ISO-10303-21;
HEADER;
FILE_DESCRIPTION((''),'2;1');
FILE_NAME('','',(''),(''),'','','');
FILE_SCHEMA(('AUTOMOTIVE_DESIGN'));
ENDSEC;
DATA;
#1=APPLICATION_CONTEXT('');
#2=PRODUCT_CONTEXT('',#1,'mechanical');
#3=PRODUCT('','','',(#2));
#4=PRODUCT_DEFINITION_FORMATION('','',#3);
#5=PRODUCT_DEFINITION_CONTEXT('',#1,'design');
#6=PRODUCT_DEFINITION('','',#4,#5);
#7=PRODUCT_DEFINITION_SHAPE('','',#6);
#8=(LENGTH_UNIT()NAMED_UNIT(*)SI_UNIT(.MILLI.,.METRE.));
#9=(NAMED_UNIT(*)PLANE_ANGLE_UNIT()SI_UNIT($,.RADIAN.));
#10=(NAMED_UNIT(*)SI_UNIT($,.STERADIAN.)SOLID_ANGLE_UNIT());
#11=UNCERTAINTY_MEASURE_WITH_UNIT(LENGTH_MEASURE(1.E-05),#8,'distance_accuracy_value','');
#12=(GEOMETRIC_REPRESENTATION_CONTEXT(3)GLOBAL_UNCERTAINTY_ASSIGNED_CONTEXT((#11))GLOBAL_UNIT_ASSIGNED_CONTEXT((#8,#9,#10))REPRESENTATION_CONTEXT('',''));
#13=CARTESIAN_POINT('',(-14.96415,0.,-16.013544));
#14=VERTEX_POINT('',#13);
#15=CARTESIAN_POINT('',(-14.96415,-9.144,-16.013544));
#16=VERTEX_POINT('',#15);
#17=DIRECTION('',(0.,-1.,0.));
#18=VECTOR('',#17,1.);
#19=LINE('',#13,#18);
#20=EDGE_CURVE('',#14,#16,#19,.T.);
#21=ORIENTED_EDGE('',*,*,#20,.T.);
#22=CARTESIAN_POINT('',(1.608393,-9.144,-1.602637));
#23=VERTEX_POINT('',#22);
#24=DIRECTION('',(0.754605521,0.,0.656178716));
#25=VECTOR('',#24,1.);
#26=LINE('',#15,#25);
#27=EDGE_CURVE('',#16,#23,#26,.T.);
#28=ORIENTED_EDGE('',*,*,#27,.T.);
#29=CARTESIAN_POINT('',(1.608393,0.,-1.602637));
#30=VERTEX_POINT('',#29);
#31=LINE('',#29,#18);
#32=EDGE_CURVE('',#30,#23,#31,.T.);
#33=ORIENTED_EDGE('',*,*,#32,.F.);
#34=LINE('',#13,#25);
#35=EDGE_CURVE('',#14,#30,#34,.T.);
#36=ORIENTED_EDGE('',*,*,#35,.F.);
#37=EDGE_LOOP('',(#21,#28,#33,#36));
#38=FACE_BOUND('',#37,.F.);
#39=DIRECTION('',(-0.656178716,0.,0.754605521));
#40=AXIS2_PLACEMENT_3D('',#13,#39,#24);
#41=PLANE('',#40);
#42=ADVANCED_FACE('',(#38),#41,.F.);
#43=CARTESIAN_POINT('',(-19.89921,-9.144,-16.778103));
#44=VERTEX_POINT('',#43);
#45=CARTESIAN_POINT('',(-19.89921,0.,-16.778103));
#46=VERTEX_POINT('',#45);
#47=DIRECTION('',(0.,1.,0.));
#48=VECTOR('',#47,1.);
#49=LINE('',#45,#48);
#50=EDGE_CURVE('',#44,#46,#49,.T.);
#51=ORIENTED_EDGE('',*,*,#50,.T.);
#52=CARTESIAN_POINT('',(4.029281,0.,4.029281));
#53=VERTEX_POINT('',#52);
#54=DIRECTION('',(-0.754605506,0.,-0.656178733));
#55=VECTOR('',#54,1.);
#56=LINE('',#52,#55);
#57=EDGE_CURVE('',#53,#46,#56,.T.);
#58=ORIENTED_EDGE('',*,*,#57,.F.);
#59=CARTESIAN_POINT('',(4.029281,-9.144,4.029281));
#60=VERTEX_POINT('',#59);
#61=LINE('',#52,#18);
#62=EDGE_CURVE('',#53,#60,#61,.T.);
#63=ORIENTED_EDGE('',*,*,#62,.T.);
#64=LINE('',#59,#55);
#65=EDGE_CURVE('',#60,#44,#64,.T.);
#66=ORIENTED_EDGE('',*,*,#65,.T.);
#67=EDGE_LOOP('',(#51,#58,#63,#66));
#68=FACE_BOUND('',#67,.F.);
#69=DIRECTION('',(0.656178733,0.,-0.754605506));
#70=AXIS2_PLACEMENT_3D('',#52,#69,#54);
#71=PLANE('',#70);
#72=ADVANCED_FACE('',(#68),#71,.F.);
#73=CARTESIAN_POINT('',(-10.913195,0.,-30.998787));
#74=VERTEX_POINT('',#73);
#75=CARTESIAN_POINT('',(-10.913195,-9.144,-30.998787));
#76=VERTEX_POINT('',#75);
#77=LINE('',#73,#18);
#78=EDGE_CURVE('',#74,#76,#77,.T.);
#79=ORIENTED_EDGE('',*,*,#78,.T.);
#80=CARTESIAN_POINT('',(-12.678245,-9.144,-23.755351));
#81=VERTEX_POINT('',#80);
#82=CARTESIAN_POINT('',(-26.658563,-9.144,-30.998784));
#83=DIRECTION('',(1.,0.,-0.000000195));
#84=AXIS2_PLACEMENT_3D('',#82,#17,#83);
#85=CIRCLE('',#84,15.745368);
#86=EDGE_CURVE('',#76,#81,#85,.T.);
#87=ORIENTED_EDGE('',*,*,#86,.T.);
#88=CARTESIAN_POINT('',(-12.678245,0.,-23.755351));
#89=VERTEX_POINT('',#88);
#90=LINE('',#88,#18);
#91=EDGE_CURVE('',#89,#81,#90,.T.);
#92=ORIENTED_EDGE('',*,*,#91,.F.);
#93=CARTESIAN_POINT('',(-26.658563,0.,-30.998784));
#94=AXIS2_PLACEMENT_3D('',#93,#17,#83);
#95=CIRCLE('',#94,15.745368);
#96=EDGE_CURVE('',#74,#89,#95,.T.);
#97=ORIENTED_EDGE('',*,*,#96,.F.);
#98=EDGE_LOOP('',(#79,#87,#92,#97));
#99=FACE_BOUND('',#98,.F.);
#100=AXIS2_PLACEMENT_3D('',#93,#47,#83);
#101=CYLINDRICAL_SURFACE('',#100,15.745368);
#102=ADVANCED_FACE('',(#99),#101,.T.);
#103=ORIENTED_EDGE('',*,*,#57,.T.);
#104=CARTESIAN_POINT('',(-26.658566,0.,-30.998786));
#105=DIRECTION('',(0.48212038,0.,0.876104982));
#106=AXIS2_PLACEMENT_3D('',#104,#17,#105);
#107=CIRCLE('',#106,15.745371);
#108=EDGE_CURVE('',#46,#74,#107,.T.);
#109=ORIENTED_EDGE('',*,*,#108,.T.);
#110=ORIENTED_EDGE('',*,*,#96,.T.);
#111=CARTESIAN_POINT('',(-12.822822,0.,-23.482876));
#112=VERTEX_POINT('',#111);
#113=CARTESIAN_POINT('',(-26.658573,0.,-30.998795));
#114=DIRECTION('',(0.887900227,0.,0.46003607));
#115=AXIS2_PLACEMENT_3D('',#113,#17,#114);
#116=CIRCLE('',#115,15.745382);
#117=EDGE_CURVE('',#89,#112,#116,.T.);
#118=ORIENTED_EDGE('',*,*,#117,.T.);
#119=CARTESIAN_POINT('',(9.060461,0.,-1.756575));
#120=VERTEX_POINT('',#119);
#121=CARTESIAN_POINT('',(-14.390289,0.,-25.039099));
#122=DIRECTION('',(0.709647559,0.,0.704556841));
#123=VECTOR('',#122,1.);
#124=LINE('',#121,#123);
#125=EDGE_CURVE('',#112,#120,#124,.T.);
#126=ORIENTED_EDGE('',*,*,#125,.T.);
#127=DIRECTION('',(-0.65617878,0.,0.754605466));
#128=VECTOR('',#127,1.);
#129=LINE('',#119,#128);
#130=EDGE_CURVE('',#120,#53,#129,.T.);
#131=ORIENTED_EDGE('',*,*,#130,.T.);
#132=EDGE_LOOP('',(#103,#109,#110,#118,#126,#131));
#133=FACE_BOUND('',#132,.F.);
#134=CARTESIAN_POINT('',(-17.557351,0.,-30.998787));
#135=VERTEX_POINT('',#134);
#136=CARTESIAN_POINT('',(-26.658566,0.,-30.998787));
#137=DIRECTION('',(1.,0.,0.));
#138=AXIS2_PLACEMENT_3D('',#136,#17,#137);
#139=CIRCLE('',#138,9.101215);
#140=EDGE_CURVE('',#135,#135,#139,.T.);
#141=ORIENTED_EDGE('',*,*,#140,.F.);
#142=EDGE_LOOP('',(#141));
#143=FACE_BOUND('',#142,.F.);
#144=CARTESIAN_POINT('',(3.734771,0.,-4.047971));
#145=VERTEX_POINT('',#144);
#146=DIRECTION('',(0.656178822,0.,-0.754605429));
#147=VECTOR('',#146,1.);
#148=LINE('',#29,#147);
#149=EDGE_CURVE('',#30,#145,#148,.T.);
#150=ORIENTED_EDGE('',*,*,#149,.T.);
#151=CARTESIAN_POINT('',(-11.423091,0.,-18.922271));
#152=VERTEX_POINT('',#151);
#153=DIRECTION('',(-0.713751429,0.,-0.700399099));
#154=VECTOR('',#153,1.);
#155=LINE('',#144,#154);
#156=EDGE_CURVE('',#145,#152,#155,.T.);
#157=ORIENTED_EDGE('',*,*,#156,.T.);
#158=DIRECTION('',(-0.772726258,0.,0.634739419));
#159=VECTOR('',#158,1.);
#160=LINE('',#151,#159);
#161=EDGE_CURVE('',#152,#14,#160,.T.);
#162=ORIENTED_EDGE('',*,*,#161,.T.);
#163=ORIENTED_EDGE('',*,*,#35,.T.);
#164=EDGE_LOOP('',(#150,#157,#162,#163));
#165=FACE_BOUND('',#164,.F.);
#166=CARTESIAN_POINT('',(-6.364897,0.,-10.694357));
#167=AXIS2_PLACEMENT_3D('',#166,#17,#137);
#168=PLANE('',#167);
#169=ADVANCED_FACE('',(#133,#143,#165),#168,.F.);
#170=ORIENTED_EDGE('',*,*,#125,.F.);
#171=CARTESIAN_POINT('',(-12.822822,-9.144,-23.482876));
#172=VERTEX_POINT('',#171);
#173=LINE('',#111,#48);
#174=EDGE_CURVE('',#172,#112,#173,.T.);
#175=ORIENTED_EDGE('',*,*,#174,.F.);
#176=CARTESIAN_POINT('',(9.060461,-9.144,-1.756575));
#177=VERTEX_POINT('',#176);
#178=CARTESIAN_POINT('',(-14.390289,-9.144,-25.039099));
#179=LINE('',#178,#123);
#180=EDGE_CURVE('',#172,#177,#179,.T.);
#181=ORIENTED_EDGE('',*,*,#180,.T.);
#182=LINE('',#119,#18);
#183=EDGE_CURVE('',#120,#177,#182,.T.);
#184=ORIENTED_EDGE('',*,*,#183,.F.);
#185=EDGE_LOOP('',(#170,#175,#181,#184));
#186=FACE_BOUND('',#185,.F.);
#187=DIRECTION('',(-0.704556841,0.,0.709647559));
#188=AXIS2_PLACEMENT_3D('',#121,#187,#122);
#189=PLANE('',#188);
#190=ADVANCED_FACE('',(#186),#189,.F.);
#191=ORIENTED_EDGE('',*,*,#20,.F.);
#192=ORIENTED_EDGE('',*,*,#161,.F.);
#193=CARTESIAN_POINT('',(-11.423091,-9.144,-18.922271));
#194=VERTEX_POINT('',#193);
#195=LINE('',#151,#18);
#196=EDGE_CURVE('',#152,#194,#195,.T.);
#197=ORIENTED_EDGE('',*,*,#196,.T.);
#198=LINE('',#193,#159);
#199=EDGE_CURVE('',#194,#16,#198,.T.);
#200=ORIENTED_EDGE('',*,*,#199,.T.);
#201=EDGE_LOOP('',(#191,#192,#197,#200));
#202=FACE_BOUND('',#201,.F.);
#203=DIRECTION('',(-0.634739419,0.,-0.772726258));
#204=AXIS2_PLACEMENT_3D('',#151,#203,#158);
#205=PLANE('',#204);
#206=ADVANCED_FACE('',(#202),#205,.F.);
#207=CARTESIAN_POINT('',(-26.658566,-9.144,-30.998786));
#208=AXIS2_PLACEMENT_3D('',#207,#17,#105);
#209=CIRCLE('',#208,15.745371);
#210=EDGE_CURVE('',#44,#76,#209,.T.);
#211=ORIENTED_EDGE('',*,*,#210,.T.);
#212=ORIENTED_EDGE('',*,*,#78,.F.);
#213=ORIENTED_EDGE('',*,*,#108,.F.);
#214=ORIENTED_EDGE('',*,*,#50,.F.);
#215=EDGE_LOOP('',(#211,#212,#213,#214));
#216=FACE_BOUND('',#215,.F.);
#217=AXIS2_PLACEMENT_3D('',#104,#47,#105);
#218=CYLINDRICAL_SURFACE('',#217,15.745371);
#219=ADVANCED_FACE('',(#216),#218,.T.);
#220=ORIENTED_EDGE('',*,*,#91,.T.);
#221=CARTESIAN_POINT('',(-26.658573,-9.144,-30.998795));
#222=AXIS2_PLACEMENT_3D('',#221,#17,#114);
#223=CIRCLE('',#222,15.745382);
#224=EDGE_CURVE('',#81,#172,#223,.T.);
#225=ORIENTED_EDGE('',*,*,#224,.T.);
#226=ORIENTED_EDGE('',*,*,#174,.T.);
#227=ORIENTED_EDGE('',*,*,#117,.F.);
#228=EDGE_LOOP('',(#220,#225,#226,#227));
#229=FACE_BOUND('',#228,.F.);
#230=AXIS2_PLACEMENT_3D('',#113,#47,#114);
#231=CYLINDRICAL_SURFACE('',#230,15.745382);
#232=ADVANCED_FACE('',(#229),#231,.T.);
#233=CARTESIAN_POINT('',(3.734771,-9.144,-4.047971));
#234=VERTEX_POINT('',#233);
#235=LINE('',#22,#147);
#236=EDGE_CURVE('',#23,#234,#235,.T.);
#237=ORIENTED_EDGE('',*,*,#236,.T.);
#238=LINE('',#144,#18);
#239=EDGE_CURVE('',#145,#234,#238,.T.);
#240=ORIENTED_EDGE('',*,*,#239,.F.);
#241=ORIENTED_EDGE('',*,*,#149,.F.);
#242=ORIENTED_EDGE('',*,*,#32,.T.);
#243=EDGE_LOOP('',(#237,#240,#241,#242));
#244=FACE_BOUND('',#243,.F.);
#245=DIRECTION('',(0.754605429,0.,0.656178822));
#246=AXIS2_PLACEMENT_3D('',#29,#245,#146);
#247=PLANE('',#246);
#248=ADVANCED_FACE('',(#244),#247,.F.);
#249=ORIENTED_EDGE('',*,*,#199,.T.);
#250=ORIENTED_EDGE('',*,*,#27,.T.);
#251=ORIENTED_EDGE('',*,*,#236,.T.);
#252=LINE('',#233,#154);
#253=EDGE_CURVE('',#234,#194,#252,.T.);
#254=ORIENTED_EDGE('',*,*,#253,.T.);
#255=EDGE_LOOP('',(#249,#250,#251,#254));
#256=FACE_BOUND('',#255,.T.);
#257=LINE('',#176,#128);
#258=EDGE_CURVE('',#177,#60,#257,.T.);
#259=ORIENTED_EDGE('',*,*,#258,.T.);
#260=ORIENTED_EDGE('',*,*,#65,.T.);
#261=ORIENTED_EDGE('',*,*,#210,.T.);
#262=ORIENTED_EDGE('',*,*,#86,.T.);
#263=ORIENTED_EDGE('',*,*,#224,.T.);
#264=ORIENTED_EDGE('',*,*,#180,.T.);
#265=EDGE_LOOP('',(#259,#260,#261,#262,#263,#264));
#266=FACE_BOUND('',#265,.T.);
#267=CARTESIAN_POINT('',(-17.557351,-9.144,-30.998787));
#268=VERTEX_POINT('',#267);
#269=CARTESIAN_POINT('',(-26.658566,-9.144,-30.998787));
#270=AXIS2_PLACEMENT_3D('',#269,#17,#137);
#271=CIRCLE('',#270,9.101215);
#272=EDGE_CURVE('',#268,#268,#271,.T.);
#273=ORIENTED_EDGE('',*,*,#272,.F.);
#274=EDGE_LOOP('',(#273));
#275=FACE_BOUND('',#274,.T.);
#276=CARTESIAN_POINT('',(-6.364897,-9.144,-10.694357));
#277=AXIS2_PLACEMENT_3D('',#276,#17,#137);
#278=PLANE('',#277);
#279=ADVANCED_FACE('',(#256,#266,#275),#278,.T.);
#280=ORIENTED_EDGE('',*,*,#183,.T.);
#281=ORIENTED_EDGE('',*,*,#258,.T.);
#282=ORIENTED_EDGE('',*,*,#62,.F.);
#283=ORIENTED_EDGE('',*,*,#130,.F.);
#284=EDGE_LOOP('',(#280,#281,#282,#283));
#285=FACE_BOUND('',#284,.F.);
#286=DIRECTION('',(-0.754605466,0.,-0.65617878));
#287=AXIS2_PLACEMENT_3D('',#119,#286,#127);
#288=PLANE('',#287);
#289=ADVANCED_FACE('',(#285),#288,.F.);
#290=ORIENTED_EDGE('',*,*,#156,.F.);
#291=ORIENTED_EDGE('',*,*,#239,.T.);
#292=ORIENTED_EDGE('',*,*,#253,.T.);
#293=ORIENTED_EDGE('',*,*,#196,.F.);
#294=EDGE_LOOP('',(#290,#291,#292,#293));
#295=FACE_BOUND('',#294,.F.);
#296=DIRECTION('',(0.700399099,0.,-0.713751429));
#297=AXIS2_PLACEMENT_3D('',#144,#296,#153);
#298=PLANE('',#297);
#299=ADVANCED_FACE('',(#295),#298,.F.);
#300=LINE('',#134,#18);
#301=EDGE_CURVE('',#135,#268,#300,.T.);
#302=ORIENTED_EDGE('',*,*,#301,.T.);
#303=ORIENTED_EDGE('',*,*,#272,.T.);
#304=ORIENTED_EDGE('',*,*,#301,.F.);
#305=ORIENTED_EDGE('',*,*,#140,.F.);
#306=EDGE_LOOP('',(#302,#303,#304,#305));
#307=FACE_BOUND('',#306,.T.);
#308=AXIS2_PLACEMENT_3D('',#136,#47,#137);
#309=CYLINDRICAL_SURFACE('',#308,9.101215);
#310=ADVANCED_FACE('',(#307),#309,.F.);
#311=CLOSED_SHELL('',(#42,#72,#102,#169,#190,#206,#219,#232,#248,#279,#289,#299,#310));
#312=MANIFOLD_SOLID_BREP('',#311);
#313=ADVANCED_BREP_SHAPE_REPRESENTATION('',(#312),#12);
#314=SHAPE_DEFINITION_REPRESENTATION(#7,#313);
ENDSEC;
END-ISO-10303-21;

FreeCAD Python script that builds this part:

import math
import FreeCAD as App
import Part
import Sketcher
Q = App.Units.Quantity

doc = App.newDocument("Part")
body = doc.addObject("PartDesign::Body", "Body")

# Sketch on XZ plane
sketch1 = body.newObject("Sketcher::SketchObject", "Sketch")
sketch1.AttachmentSupport = (doc.getObject("XZ_Plane"), [""])
sketch1.MapMode = "FlatFace"
sketch1.addGeometry([
    Part.ArcOfCircle(Part.Circle(App.Vector(-27, -31, 0), App.Vector(0, 0, 1), 16), math.radians(61), math.radians(360)),
    Part.ArcOfCircle(Part.Circle(App.Vector(-27, -31, 0), App.Vector(0, 0, 1), 16), math.radians(0), math.radians(27)),
    Part.ArcOfCircle(Part.Circle(App.Vector(-27, -31, 0), App.Vector(0, 0, 1), 16), math.radians(27), math.radians(61)),
    Part.Circle(App.Vector(-27, -31, 0), App.Vector(0, 0, 1), 9),
], False)
sketch1.addConstraint([
    Sketcher.Constraint("Tangent", 0, 2, 1, 1),
    Sketcher.Constraint("Tangent", 1, 2, 2, 1),
    Sketcher.Constraint("Tangent", 2, 2, 0, 1),
    Sketcher.Constraint("Coincident", 3, 3, 0, 3),
    Sketcher.Constraint("Horizontal", 3, 3, 0, 2),
    Sketcher.Constraint("Diameter", 3, Q("18.20243 mm")),
    Sketcher.Constraint("Radius", 0, Q("15.745371 mm")),
    Sketcher.Constraint("DistanceX", 2, 2, -1, 1, Q("19.067402 mm")),
    Sketcher.Constraint("DistanceY", 0, 3, 2, 2, Q("13.794598 mm")),
    Sketcher.Constraint("DistanceY", 1, 2, -1, 1, Q("23.755351 mm")),
    Sketcher.Constraint("DistanceX", 1, 2, 0, 2, Q("1.76505 mm")),
])
pad1 = body.newObject("PartDesign::Pad", "Pad")
pad1.Profile = sketch1
pad1.Length = Q("0.36 in")

# Sketch on XZ plane
sketch2 = body.newObject("Sketcher::SketchObject", "Sketch001")
sketch2.AttachmentSupport = (doc.getObject("XZ_Plane"), [""])
sketch2.MapMode = "FlatFace"
sketch2.addGeometry([
    Part.LineSegment(App.Vector(4, 4, 0), App.Vector(-22.4, -19, 0)),  # 0
    Part.LineSegment(App.Vector(-22.4, -19, 0), App.Vector(-14.4, -25, 0)),  # 1
    Part.LineSegment(App.Vector(-14.4, -25, 0), App.Vector(9.1, -1.8, 0)),  # 2
    Part.LineSegment(App.Vector(9.1, -1.8, 0), App.Vector(4, 4, 0)),  # 3
    Part.LineSegment(App.Vector(3.7, -4, 0), App.Vector(-11.4, -18.9, 0)),  # 4
    Part.LineSegment(App.Vector(-11.4, -18.9, 0), App.Vector(-15, -16, 0)),  # 5
    Part.LineSegment(App.Vector(-15, -16, 0), App.Vector(1.6, -1.6, 0)),  # 6
    Part.LineSegment(App.Vector(1.6, -1.6, 0), App.Vector(3.7, -4, 0)),  # 7
], False)
sketch2.addConstraint([
    Sketcher.Constraint("Coincident", 0, 2, 1, 1),
    Sketcher.Constraint("Coincident", 1, 2, 2, 1),
    Sketcher.Constraint("Coincident", 2, 2, 3, 1),
    Sketcher.Constraint("Coincident", 3, 2, 0, 1),
    Sketcher.Constraint("Coincident", 4, 2, 5, 1),
    Sketcher.Constraint("Coincident", 5, 2, 6, 1),
    Sketcher.Constraint("Coincident", 6, 2, 7, 1),
    Sketcher.Constraint("Coincident", 7, 2, 4, 1),
    Sketcher.Constraint("Perpendicular", 0, 3),
    Sketcher.Constraint("Perpendicular", 3, 6),
    Sketcher.Constraint("Perpendicular", 6, 7),
    Sketcher.Constraint("Distance", 1, Q("10.073199 mm")),
    Sketcher.Constraint("DistanceY", 1, 2, -1, 1, Q("25.039099 mm")),
    Sketcher.Constraint("DistanceX", 0, 2, 5, 2, Q("7.484699 mm")),
    Sketcher.Constraint("DistanceY", 4, 2, 7, 2, Q("14.8743 mm")),
    Sketcher.Constraint("Distance", 2, Q("33.045629 mm")),
    Sketcher.Constraint("Distance", 4, Q("21.236892 mm")),
    Sketcher.Constraint("DistanceX", 0, 2, -1, 1, Q("22.448849 mm")),
    Sketcher.Constraint("DistanceY", 0, 2, -1, 1, Q("18.995181 mm")),
    Sketcher.Constraint("DistanceX", -1, 1, 2, 2, Q("9.060461 mm")),
    Sketcher.Constraint("DistanceX", -1, 1, 3, 2, Q("4.029281 mm")),
    Sketcher.Constraint("DistanceX", 4, 2, -1, 1, Q("11.423091 mm")),
    Sketcher.Constraint("DistanceY", 4, 2, -1, 1, Q("18.922271 mm")),
    Sketcher.Constraint("DistanceY", 5, 2, 2, 2, Q("14.256969 mm")),
])
pad2 = body.newObject("PartDesign::Pad", "Pad001")
pad2.Profile = sketch2
pad2.Length = Q("0.36 in")

doc.recompute()
